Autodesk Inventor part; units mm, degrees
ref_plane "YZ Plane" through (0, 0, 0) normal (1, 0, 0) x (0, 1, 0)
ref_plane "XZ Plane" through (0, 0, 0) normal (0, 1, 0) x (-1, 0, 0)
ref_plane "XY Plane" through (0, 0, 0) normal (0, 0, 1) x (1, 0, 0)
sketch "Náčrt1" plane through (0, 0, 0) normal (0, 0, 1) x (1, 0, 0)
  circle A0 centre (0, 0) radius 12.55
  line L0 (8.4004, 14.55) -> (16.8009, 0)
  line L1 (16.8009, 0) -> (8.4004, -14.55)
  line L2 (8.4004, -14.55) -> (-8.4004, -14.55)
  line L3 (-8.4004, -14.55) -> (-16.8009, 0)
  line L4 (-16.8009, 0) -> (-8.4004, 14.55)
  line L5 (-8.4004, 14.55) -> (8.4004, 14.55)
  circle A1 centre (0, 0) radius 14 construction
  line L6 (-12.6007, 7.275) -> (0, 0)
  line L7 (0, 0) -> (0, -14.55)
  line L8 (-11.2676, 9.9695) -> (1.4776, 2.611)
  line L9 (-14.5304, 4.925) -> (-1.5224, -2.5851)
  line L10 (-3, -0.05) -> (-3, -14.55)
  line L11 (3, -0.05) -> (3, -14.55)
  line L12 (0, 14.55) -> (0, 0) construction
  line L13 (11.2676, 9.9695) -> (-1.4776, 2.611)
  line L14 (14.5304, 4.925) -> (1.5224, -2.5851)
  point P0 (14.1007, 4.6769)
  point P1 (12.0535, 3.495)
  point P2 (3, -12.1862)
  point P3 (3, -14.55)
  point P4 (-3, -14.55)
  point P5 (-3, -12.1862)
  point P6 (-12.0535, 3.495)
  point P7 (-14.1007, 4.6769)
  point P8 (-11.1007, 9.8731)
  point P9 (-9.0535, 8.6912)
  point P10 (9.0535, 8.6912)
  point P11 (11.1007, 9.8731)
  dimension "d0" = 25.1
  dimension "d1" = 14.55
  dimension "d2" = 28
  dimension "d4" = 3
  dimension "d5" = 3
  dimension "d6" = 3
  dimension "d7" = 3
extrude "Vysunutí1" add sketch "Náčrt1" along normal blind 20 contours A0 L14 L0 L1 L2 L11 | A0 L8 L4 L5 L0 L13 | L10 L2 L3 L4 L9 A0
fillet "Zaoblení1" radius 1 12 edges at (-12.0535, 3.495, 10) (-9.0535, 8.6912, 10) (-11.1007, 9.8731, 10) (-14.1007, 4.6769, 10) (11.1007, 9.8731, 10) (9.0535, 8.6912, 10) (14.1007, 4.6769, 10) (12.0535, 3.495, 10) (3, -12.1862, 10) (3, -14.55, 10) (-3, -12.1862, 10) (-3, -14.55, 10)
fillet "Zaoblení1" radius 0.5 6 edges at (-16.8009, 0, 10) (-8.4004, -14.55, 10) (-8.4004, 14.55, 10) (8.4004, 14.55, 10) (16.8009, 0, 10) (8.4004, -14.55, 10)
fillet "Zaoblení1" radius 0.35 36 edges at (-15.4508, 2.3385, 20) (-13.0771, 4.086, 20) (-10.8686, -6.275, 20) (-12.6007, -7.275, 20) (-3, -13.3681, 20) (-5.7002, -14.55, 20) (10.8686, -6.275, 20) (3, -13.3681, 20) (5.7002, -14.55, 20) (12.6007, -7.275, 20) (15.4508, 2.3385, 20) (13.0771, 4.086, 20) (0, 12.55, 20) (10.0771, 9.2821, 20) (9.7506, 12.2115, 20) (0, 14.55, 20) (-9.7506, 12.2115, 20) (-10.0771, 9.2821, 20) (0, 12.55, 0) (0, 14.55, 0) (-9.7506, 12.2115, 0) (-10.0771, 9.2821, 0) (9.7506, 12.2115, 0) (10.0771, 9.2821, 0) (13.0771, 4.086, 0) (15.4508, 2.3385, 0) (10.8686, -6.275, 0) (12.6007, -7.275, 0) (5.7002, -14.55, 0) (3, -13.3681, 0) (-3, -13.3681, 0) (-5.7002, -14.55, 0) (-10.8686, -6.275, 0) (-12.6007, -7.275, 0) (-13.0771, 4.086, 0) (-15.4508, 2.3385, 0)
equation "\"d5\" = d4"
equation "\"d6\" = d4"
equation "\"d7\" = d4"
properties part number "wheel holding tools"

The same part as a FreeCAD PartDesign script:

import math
import FreeCAD as App
import Part
import Sketcher
from FreeCAD import Vector
Q = App.Units.Quantity


def edges_at(feature, points):
    """Names of the edges that pass closest to the given points."""
    edges = feature.Shape.Edges
    near = lambda p: min(range(len(edges)), key=lambda i: edges[i].distToShape(Part.Vertex(*p))[0])
    return sorted({f"Edge{near(p) + 1}" for p in points})

doc = App.newDocument("Part")
body = doc.addObject("PartDesign::Body", "Body")
body.AllowCompound = True

# Sketch on XY plane
sketch1 = body.newObject("Sketcher::SketchObject", "Sketch")
sketch1.AttachmentSupport = (doc.getObject("XY_Plane"), [""])
sketch1.MapMode = "FlatFace"
sketch1.addGeometry([
    Part.ArcOfCircle(Part.Circle(Vector(0, 0, 0), Vector(0, 0, 1), 12.6), math.radians(-76), math.radians(16)),  # 0
    Part.LineSegment(Vector(3, -12.2, 0), Vector(3, -14.6, 0)),  # 1
    Part.LineSegment(Vector(3, -14.6, 0), Vector(8.4, -14.6, 0)),  # 2
    Part.LineSegment(Vector(8.4, -14.6, 0), Vector(16.8, 0, 0)),  # 3
    Part.LineSegment(Vector(16.8, 0, 0), Vector(14.1, 4.7, 0)),  # 4
    Part.LineSegment(Vector(14.1, 4.7, 0), Vector(12.1, 3.5, 0)),  # 5
    Part.ArcOfCircle(Part.Circle(Vector(0, 0, 0), Vector(0, 0, 1), 12.6), math.radians(44), math.radians(136)),  # 6
    Part.LineSegment(Vector(9.1, 8.7, 0), Vector(11.1, 9.9, 0)),  # 7
    Part.LineSegment(Vector(11.1, 9.9, 0), Vector(8.4, 14.6, 0)),  # 8
    Part.LineSegment(Vector(8.4, 14.6, 0), Vector(-8.4, 14.6, 0)),  # 9
    Part.LineSegment(Vector(-8.4, 14.6, 0), Vector(-11.1, 9.9, 0)),  # 10
    Part.LineSegment(Vector(-11.1, 9.9, 0), Vector(-9.1, 8.7, 0)),  # 11
    Part.LineSegment(Vector(-3, -14.6, 0), Vector(-3, -12.2, 0)),  # 12
    Part.ArcOfCircle(Part.Circle(Vector(0, 0, 0), Vector(0, 0, 1), 12.6), math.radians(164), math.radians(256)),  # 13
    Part.LineSegment(Vector(-12.1, 3.5, 0), Vector(-14.1, 4.7, 0)),  # 14
    Part.LineSegment(Vector(-14.1, 4.7, 0), Vector(-16.8, 0, 0)),  # 15
    Part.LineSegment(Vector(-16.8, 0, 0), Vector(-8.4, -14.6, 0)),  # 16
    Part.LineSegment(Vector(-8.4, -14.6, 0), Vector(-3, -14.6, 0)),  # 17
], False)
sketch1.addConstraint([
    Sketcher.Constraint("Coincident", 0, 1, 1, 1),
    Sketcher.Constraint("Coincident", 1, 2, 2, 1),
    Sketcher.Constraint("Coincident", 2, 2, 3, 1),
    Sketcher.Constraint("Coincident", 3, 2, 4, 1),
    Sketcher.Constraint("Coincident", 4, 2, 5, 1),
    Sketcher.Constraint("Coincident", 5, 2, 0, 2),
    Sketcher.Constraint("Coincident", 6, 1, 7, 1),
    Sketcher.Constraint("Coincident", 7, 2, 8, 1),
    Sketcher.Constraint("Coincident", 8, 2, 9, 1),
    Sketcher.Constraint("Coincident", 9, 2, 10, 1),
    Sketcher.Constraint("Coincident", 10, 2, 11, 1),
    Sketcher.Constraint("Coincident", 11, 2, 6, 2),
    Sketcher.Constraint("Coincident", 12, 2, 13, 2),
    Sketcher.Constraint("Coincident", 13, 1, 14, 1),
    Sketcher.Constraint("Coincident", 14, 2, 15, 1),
    Sketcher.Constraint("Coincident", 15, 2, 16, 1),
    Sketcher.Constraint("Coincident", 16, 2, 17, 1),
    Sketcher.Constraint("Coincident", 17, 2, 12, 1),
    Sketcher.Constraint("Vertical", 1),
    Sketcher.Constraint("Horizontal", 2),
    Sketcher.Constraint("Horizontal", 9),
    Sketcher.Constraint("Vertical", 12),
    Sketcher.Constraint("Horizontal", 17),
    Sketcher.Constraint("Coincident", 0, 3, -1, 1),
    Sketcher.Constraint("Coincident", 6, 3, -1, 1),
    Sketcher.Constraint("Coincident", 13, 3, -1, 1),
    Sketcher.Constraint("Equal", 0, 6),
    Sketcher.Constraint("Equal", 6, 13),
    Sketcher.Constraint("Symmetric", 2, 2, 9, 2, -1, 1),
    Sketcher.Constraint("Symmetric", 3, 2, 15, 2, -1, 1),
    Sketcher.Constraint("Symmetric", 8, 2, 16, 2, -1, 1),
    Sketcher.Constraint("Symmetric", 7, 2, 10, 2, -2),
    Sketcher.Constraint("Symmetric", 4, 2, 14, 2, -2),
    Sketcher.Constraint("PointOnObject", 3, 2, -1),
    Sketcher.Constraint("Perpendicular", 4, 5),
    Sketcher.Constraint("Parallel", 5, 7),
    Sketcher.Constraint("Perpendicular", 7, 8),
    Sketcher.Constraint("Parallel", 3, 10),
    Sketcher.Constraint("Perpendicular", 10, 11),
    Sketcher.Constraint("Parallel", 11, 14),
    Sketcher.Constraint("Perpendicular", 14, 15),
    Sketcher.Constraint("Horizontal", 0, 1, 12, 2),
    Sketcher.Constraint("Equal", 5, 7),
    Sketcher.Constraint("Equal", 4, 8),
    Sketcher.Constraint("Radius", 0, 12.55),
    Sketcher.Constraint("DistanceX", -1, 1, 0, 1, 3.0),
    Sketcher.Constraint("DistanceX", 6, 1, 5, 2, 3.0),
    Sketcher.Constraint("DistanceY", 1, 2, -1, 1, 14.55),
    Sketcher.Constraint("Angle", 3, Q("59.9998 deg")),
])
pad1 = body.newObject("PartDesign::Pad", "Pad")
pad1.Profile = sketch1
pad1.Length = 20
doc.recompute()

fillet = body.newObject("PartDesign::Fillet", "Fillet")
fillet.Base = (pad1, edges_at(pad1, [
    (-12.053, 3.495, 10),
    (-9.053, 8.691, 10),
    (-11.101, 9.873, 10),
    (-14.101, 4.677, 10),
    (11.101, 9.873, 10),
    (9.053, 8.691, 10),
    (14.101, 4.677, 10),
    (12.053, 3.495, 10),
    (3, -12.186, 10),
    (3, -14.55, 10),
    (-3, -12.186, 10),
    (-3, -14.55, 10),
]))
fillet.Radius = 1
doc.recompute()

fillet2 = body.newObject("PartDesign::Fillet", "Fillet001")
fillet2.Base = (fillet, edges_at(fillet, [
    (-16.801, 0, 10),
    (-8.4, -14.55, 10),
    (-8.4, 14.55, 10),
    (8.4, 14.55, 10),
    (16.801, 0, 10),
    (8.4, -14.55, 10),
]))
fillet2.Radius = 0.5
doc.recompute()

fillet3 = body.newObject("PartDesign::Fillet", "Fillet002")
fillet3.Base = (fillet2, edges_at(fillet2, [
    (-15.451, 2.338, 20),
    (-13.077, 4.086, 20),
    (-10.869, -6.275, 20),
    (-12.601, -7.275, 20),
    (-3, -13.368, 20),
    (-5.7, -14.55, 20),
    (10.869, -6.275, 20),
    (3, -13.368, 20),
    (5.7, -14.55, 20),
    (12.601, -7.275, 20),
    (15.451, 2.338, 20),
    (13.077, 4.086, 20),
    (0, 12.55, 20),
    (10.077, 9.282, 20),
    (9.751, 12.211, 20),
    (0, 14.55, 20),
    (-9.751, 12.211, 20),
    (-10.077, 9.282, 20),
    (0, 12.55, 0),
    (0, 14.55, 0),
    (-9.751, 12.211, 0),
    (-10.077, 9.282, 0),
    (9.751, 12.211, 0),
    (10.077, 9.282, 0),
    (13.077, 4.086, 0),
    (15.451, 2.338, 0),
    (10.869, -6.275, 0),
    (12.601, -7.275, 0),
    (5.7, -14.55, 0),
    (3, -13.368, 0),
    (-3, -13.368, 0),
    (-5.7, -14.55, 0),
    (-10.869, -6.275, 0),
    (-12.601, -7.275, 0),
    (-13.077, 4.086, 0),
    (-15.451, 2.338, 0),
]))
fillet3.Radius = 0.35

doc.recompute()
